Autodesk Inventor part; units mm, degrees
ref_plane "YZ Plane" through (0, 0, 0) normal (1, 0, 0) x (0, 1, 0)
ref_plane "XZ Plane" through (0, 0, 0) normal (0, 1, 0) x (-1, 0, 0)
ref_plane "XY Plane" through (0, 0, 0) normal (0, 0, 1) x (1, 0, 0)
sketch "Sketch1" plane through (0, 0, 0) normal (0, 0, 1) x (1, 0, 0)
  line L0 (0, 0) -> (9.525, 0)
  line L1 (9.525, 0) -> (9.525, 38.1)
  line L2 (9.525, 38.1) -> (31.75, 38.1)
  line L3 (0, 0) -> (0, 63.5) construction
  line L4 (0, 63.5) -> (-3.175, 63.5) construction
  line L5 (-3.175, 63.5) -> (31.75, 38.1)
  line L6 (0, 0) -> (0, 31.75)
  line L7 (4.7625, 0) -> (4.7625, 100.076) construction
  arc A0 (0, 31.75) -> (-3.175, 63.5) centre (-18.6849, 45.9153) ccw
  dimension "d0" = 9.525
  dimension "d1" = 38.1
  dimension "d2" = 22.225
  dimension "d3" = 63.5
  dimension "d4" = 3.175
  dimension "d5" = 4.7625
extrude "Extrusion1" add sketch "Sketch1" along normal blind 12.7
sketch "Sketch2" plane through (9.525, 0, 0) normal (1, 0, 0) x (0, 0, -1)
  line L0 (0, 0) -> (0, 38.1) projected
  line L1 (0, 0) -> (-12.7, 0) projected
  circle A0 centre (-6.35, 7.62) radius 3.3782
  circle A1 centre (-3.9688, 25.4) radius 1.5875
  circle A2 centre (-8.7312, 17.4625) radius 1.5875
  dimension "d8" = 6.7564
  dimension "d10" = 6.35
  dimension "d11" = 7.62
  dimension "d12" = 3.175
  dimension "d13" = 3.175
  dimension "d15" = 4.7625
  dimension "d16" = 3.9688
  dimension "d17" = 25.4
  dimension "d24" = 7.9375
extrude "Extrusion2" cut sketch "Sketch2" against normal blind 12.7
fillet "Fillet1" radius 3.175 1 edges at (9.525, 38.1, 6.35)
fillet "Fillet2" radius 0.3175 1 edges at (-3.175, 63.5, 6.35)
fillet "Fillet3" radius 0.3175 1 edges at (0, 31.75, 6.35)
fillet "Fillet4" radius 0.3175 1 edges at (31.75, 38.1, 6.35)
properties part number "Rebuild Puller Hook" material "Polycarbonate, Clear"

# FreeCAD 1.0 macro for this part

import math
import FreeCAD as App
import Part
import Sketcher
from FreeCAD import Vector
Q = App.Units.Quantity


def edges_at(feature, points):
    """Names of the edges that pass closest to the given points."""
    edges = feature.Shape.Edges
    near = lambda p: min(range(len(edges)), key=lambda i: edges[i].distToShape(Part.Vertex(*p))[0])
    return sorted({f"Edge{near(p) + 1}" for p in points})

doc = App.newDocument("Part")
params = doc.addObject("Spreadsheet::Sheet", "Params")
for row, (alias, value) in enumerate([
    ("sketch1_height", "1.5 in"),
    ("sketch1_width", "0.375 in"),
    ("sketch1_width2", "0.875 in"),
    ("sketch1_height2", "1.25 in"),
    ("pad1_length", "0.5 in"),
    ("sketch2_diameter", "0.266 in"),
    ("sketch2_diameter2", "0.125 in"),
    ("pocket1_length", "0.5 in"),
    ("fillet_radius", "0.125 in"),
    ("fillet2_radius", "0.0125 in"),
    ("fillet3_radius", "0.0125 in"),
    ("fillet4_radius", "0.0125 in"),
], start=1):
    params.set(f"A{row}", alias)
    params.set(f"B{row}", "=" + value)
    params.setAlias(f"B{row}", alias)

body = doc.addObject("PartDesign::Body", "Body")

sketch1 = doc.addObject("Sketcher::SketchObject", "Sketch")
body.addObject(sketch1)
sketch1.AttachmentSupport = (doc.XY_Plane, [""])
sketch1.MapMode = "FlatFace"
sketch1.addGeometry([
    Part.LineSegment(Vector(0, 32, 0), Vector(0, 0, 0)),
    Part.LineSegment(Vector(0, 0, 0), Vector(10, 0, 0)),
    Part.LineSegment(Vector(10, 0, 0), Vector(10, 38, 0)),
    Part.LineSegment(Vector(10, 38, 0), Vector(32, 38, 0)),
    Part.LineSegment(Vector(32, 38, 0), Vector(-3, 64, 0)),
    Part.ArcOfCircle(Part.Circle(Vector(-19, 46, 0), Vector(0, 0, 1), 23), math.radians(-37), math.radians(49)),
], False)
sketch1.addConstraint([
    Sketcher.Constraint("Coincident", 0, 2, 1, 1),
    Sketcher.Constraint("Coincident", 1, 2, 2, 1),
    Sketcher.Constraint("Coincident", 2, 2, 3, 1),
    Sketcher.Constraint("Coincident", 3, 2, 4, 1),
    Sketcher.Constraint("Coincident", 4, 2, 5, 2),
    Sketcher.Constraint("Coincident", 5, 1, 0, 1),
    Sketcher.Constraint("Vertical", 0),
    Sketcher.Constraint("Horizontal", 1),
    Sketcher.Constraint("Vertical", 2),
    Sketcher.Constraint("Horizontal", 3),
    Sketcher.Constraint("Coincident", 0, 2, -1, 1),
    Sketcher.Constraint("DistanceY", 2, 1, 2, 2, Q("1.5 in")),
    Sketcher.Constraint("DistanceY", -1, 1, 4, 2, Q("2.5 in")),
    Sketcher.Constraint("DistanceX", 1, 1, 1, 2, Q("0.375 in")),
    Sketcher.Constraint("DistanceX", 3, 1, 3, 2, Q("0.875 in")),
    Sketcher.Constraint("DistanceX", 4, 2, -1, 1, Q("0.125 in")),
    Sketcher.Constraint("DistanceY", 0, 2, 0, 1, Q("1.25 in")),
    Sketcher.Constraint("Radius", 5, Q("23.4474 mm")),
])
sketch1.setExpression("Constraints[11]", "Params.sketch1_height")
sketch1.setExpression("Constraints[13]", "Params.sketch1_width")
sketch1.setExpression("Constraints[14]", "Params.sketch1_width2")
sketch1.setExpression("Constraints[16]", "Params.sketch1_height2")
pad1 = doc.addObject("PartDesign::Pad", "Pad")
body.addObject(pad1)
pad1.Profile = sketch1
pad1.setExpression("Length", "Params.pad1_length")

sketch2 = doc.addObject("Sketcher::SketchObject", "Sketch001")
body.addObject(sketch2)
sketch2.AttachmentSupport = (doc.YZ_Plane, [""])
sketch2.MapMode = "FlatFace"
sketch2.AttachmentOffset = App.Placement(Vector(0, 0, 0.375 * 25.4), App.Rotation())
sketch2.addGeometry([
    Part.Circle(Vector(7.6, 6.3, 0), Vector(0, 0, 1), 3.4),
    Part.Circle(Vector(25.4, 4, 0), Vector(0, 0, 1), 1.6),
    Part.Circle(Vector(17.5, 8.7, 0), Vector(0, 0, 1), 1.6),
], False)
sketch2.addConstraint([
    Sketcher.Constraint("Equal", 1, 2),
    Sketcher.Constraint("Diameter", 0, Q("0.266 in")),
    Sketcher.Constraint("Diameter", 1, Q("0.125 in")),
    Sketcher.Constraint("DistanceX", -1, 1, 1, 3, Q("1 in")),
    Sketcher.Constraint("DistanceX", -1, 1, 0, 3, Q("0.3 in")),
    Sketcher.Constraint("DistanceY", -1, 1, 0, 3, Q("0.25 in")),
    Sketcher.Constraint("DistanceY", -1, 1, 1, 3, Q("0.156252 in")),
    Sketcher.Constraint("DistanceX", 2, 3, 1, 3, Q("0.3125 in")),
    Sketcher.Constraint("DistanceY", 1, 3, 2, 3, Q("0.1875 in")),
])
sketch2.setExpression("Constraints[1]", "Params.sketch2_diameter")
sketch2.setExpression("Constraints[2]", "Params.sketch2_diameter2")
pocket1 = doc.addObject("PartDesign::Pocket", "Pocket")
body.addObject(pocket1)
pocket1.Profile = sketch2
pocket1.setExpression("Length", "Params.pocket1_length")
doc.recompute()

fillet = doc.addObject("PartDesign::Fillet", "Fillet")
body.addObject(fillet)
fillet.Base = (pocket1, edges_at(pocket1, [(9.525, 38.1, 6.35)]))
fillet.setExpression("Radius", "Params.fillet_radius")
doc.recompute()

fillet2 = doc.addObject("PartDesign::Fillet", "Fillet001")
body.addObject(fillet2)
fillet2.Base = (fillet, edges_at(fillet, [(-3.175, 63.5, 6.35)]))
fillet2.setExpression("Radius", "Params.fillet2_radius")
doc.recompute()

fillet3 = doc.addObject("PartDesign::Fillet", "Fillet002")
body.addObject(fillet3)
fillet3.Base = (fillet2, edges_at(fillet2, [(0, 31.75, 6.35)]))
fillet3.setExpression("Radius", "Params.fillet3_radius")
doc.recompute()

fillet4 = doc.addObject("PartDesign::Fillet", "Fillet003")
body.addObject(fillet4)
fillet4.Base = (fillet3, edges_at(fillet3, [(31.75, 38.1, 6.35)]))
fillet4.setExpression("Radius", "Params.fillet4_radius")

doc.recompute()
